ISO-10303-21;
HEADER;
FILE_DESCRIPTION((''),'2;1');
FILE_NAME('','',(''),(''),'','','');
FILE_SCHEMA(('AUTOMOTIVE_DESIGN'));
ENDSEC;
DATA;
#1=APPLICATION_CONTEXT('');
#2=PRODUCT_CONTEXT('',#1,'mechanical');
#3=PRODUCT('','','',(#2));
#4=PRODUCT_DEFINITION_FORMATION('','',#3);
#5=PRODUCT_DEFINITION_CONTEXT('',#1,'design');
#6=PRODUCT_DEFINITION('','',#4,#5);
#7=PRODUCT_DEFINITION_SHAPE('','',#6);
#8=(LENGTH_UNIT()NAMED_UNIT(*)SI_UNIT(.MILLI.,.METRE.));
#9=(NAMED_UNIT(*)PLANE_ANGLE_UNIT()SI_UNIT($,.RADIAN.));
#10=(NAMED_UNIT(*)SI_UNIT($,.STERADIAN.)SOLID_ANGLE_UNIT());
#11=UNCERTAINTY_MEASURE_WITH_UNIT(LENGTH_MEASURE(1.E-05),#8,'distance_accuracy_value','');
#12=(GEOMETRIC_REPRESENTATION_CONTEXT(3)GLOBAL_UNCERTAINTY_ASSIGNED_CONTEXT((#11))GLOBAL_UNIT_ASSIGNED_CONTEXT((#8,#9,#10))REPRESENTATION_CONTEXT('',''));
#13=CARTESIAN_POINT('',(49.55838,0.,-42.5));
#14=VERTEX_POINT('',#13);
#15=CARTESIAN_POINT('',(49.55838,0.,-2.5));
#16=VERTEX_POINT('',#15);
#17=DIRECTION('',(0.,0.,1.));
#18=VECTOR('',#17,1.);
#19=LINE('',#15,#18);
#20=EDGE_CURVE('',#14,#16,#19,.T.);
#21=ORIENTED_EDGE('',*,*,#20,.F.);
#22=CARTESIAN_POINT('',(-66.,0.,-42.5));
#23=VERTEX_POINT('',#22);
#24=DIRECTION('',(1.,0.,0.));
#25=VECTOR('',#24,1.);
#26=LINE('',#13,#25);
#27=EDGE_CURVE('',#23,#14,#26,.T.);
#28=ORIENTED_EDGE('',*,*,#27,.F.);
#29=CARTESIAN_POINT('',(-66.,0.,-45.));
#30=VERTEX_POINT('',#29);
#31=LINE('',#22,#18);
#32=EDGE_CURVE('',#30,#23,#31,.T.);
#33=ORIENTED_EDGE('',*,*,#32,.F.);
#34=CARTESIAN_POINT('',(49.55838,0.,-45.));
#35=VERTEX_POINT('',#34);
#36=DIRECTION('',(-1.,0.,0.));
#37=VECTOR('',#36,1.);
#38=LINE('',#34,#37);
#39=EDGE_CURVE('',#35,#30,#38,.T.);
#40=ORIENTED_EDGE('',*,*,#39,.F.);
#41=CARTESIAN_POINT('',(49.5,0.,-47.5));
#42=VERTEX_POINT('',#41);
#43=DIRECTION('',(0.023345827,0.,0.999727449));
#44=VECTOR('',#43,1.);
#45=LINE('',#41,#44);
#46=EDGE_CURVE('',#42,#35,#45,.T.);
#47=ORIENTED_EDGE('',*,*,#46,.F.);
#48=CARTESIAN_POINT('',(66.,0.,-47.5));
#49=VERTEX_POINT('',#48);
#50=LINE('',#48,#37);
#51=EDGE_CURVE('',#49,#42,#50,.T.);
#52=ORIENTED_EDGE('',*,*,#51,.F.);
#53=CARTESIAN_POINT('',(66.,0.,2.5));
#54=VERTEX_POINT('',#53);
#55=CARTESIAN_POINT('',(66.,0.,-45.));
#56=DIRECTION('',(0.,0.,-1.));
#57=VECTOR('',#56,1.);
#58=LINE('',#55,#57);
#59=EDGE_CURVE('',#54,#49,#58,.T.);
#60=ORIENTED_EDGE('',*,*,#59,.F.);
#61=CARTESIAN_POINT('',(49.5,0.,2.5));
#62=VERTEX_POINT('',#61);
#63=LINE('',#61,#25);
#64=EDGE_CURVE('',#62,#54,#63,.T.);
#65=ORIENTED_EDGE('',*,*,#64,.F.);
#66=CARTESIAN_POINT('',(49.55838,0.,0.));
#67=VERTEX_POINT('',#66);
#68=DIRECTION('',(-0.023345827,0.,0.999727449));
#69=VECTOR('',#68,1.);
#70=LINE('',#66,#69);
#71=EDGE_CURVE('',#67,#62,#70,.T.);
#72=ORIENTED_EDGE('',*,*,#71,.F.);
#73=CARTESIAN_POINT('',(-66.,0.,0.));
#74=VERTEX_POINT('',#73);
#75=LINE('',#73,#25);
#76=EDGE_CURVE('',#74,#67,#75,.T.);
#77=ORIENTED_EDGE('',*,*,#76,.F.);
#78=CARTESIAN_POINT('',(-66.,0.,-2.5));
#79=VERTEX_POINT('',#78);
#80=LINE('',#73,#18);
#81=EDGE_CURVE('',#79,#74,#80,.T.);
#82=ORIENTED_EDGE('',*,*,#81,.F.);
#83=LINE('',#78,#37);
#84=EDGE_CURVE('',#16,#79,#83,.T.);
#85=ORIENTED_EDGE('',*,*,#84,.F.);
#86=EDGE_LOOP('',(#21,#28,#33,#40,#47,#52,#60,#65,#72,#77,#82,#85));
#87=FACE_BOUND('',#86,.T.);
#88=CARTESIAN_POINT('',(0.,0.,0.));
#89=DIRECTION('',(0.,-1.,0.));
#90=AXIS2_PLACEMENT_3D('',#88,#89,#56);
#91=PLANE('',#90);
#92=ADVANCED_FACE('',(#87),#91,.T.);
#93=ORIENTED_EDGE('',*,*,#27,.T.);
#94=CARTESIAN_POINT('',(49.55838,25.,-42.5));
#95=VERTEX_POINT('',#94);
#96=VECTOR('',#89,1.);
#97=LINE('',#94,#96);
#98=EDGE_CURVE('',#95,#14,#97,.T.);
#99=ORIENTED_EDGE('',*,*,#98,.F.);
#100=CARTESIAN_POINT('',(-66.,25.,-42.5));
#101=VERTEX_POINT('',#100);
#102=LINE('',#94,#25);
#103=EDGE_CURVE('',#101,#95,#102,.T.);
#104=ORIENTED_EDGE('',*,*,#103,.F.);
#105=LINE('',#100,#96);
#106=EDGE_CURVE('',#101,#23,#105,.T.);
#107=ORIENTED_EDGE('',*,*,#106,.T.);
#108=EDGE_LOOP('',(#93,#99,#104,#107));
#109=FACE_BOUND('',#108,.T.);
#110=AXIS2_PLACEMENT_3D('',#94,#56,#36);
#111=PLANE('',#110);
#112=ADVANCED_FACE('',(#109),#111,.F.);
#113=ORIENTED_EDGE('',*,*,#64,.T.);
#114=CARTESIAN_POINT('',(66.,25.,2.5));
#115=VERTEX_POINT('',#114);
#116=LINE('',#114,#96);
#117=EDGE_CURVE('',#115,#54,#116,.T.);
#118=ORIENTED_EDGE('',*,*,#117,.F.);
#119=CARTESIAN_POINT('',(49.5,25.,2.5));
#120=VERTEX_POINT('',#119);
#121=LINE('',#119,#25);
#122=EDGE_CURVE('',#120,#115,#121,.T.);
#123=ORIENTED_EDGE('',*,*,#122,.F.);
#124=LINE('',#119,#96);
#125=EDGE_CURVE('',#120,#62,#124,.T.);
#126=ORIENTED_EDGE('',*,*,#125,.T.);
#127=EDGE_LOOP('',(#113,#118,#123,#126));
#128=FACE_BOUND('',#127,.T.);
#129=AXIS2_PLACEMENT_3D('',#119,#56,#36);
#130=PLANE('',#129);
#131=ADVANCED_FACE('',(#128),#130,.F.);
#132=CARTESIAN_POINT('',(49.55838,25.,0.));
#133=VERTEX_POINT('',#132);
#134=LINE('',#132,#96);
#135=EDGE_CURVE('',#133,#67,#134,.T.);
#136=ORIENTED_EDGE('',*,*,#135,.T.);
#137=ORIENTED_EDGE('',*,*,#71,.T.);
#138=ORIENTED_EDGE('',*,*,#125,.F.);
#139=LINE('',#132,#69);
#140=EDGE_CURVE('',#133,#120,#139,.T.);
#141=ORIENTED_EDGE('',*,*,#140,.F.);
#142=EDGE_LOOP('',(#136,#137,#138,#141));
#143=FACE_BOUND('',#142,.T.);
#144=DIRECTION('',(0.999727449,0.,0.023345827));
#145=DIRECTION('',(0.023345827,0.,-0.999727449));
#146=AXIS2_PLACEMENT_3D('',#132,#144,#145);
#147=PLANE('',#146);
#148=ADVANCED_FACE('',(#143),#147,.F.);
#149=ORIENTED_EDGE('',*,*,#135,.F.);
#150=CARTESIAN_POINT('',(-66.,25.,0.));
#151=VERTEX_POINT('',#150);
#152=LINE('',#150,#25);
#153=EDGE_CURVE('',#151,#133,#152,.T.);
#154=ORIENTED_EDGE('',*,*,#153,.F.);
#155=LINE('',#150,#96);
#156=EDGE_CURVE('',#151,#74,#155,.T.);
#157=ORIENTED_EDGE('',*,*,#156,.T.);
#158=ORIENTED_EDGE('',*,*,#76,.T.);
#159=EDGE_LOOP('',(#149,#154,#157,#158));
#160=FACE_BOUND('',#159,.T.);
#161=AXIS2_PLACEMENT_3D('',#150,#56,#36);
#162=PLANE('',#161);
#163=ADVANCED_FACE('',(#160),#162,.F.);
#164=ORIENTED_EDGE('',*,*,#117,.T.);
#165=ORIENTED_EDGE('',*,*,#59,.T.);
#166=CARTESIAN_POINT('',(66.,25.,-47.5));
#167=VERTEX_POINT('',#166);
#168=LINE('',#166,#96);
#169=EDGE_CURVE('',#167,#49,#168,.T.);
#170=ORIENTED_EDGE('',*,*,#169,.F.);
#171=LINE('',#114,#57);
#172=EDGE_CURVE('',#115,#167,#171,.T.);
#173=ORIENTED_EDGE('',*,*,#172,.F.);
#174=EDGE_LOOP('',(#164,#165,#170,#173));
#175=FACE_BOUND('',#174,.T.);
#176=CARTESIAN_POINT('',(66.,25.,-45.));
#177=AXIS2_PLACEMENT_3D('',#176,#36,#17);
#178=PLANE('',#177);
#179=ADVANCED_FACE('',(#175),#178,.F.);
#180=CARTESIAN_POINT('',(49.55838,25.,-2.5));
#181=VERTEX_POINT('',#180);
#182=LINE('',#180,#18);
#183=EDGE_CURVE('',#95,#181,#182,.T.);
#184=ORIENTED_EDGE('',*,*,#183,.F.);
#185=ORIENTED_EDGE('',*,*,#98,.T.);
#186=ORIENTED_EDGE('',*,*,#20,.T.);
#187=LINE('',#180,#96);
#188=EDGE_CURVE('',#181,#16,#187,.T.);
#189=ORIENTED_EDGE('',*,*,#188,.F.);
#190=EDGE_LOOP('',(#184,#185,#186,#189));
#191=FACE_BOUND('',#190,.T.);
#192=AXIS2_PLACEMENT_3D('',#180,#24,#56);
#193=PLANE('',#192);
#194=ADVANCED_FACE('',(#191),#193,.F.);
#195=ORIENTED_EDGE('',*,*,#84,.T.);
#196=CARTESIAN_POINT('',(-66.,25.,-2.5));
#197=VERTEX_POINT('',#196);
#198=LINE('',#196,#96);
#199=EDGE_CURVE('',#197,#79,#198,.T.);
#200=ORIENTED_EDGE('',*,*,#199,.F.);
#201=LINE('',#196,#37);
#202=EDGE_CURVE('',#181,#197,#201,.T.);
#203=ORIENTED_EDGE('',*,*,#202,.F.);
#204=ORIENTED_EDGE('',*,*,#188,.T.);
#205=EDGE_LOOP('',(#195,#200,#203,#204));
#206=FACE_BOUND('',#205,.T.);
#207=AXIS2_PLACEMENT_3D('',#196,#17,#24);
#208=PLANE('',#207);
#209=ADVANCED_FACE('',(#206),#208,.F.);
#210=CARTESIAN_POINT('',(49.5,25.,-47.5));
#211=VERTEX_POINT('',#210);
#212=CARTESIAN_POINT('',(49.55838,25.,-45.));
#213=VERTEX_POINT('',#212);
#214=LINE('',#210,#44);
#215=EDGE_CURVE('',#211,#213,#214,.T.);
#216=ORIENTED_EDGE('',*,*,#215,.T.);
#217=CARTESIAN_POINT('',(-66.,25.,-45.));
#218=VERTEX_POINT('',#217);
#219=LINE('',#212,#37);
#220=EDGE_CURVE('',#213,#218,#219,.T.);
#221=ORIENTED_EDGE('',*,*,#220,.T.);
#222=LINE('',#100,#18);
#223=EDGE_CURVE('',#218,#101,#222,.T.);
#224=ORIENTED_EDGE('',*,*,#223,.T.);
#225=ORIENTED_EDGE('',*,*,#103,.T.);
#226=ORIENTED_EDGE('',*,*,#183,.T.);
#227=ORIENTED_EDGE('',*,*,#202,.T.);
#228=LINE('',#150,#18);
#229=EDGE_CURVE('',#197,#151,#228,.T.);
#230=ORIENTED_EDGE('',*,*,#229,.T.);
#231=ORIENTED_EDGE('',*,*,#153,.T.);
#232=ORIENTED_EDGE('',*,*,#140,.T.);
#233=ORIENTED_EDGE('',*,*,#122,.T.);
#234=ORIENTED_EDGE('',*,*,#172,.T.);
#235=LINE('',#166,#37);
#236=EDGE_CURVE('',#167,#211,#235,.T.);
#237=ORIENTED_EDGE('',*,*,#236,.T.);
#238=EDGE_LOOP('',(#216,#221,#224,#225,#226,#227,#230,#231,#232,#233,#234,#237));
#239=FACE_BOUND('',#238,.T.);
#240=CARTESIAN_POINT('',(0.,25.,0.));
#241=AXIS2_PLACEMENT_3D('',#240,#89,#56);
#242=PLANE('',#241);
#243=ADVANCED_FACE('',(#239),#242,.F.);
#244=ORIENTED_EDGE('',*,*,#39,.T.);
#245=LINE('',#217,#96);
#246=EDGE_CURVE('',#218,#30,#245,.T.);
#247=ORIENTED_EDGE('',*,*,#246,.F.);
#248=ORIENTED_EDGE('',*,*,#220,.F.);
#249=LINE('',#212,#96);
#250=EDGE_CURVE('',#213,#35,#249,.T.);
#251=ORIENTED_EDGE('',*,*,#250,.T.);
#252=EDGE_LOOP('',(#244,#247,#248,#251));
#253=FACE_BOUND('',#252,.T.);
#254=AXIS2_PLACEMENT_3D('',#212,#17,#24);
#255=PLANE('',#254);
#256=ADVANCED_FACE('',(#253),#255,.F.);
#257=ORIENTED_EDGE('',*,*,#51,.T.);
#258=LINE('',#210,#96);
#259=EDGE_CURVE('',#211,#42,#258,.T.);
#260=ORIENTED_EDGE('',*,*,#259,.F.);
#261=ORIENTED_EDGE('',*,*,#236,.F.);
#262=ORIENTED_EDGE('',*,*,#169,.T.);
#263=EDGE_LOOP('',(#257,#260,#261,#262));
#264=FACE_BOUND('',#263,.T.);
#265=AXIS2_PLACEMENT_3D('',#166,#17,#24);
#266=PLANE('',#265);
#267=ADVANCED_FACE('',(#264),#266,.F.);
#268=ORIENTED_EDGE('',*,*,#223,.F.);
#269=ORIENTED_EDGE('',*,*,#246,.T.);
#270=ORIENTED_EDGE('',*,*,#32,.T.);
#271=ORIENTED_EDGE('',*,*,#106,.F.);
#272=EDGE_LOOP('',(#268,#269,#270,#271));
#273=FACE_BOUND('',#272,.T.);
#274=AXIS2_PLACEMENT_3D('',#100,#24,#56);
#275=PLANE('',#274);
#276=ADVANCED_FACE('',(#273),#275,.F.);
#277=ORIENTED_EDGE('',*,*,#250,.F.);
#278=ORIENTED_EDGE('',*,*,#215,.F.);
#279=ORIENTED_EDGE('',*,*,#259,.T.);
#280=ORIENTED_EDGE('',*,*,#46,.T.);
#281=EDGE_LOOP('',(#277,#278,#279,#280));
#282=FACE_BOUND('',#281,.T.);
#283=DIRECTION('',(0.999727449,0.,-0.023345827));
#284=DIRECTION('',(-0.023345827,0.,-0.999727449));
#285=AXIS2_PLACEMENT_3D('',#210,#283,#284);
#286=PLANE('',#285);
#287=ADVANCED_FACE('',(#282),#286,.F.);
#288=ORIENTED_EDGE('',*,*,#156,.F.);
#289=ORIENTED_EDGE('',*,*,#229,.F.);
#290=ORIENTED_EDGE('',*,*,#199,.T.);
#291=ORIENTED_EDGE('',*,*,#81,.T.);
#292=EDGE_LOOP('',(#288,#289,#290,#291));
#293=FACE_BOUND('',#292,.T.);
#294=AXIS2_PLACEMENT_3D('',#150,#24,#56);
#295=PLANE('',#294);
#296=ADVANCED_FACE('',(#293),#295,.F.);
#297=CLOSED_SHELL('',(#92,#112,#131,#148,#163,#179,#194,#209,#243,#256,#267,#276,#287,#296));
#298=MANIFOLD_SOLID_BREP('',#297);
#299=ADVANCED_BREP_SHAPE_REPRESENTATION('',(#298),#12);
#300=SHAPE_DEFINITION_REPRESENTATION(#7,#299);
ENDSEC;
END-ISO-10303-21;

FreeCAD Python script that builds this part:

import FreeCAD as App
import Part
import Sketcher
from FreeCAD import Vector
Q = App.Units.Quantity

doc = App.newDocument("Part")
body = doc.addObject("PartDesign::Body", "Body")

# Sketch on XZ plane
sketch1 = doc.addObject("Sketcher::SketchObject", "Sketch")
body.addObject(sketch1)
sketch1.AttachmentSupport = (doc.XZ_Plane, [""])
sketch1.MapMode = "FlatFace"
sketch1.addGeometry([
    Part.LineSegment(Vector(49.6, 0, 0), Vector(49.5, 2.5, 0)),  # 0
    Part.LineSegment(Vector(49.5, 2.5, 0), Vector(66, 2.5, 0)),  # 1
    Part.LineSegment(Vector(66, 2.5, 0), Vector(66, -47.5, 0)),  # 2
    Part.LineSegment(Vector(66, -47.5, 0), Vector(49.5, -47.5, 0)),  # 3
    Part.LineSegment(Vector(49.5, -47.5, 0), Vector(49.6, -45, 0)),  # 4
    Part.LineSegment(Vector(49.6, -45, 0), Vector(-66, -45, 0)),  # 5
    Part.LineSegment(Vector(-66, -45, 0), Vector(-66, -42.5, 0)),  # 6
    Part.LineSegment(Vector(-66, -42.5, 0), Vector(49.6, -42.5, 0)),  # 7
    Part.LineSegment(Vector(49.6, -42.5, 0), Vector(49.6, -2.5, 0)),  # 8
    Part.LineSegment(Vector(49.6, -2.5, 0), Vector(-66, -2.5, 0)),  # 9
    Part.LineSegment(Vector(-66, -2.5, 0), Vector(-66, 0, 0)),  # 10
    Part.LineSegment(Vector(-66, 0, 0), Vector(49.6, 0, 0)),  # 11
], False)
sketch1.addConstraint([
    Sketcher.Constraint("Coincident", 0, 2, 1, 1),
    Sketcher.Constraint("Coincident", 1, 2, 2, 1),
    Sketcher.Constraint("Coincident", 2, 2, 3, 1),
    Sketcher.Constraint("Coincident", 3, 2, 4, 1),
    Sketcher.Constraint("Coincident", 4, 2, 5, 1),
    Sketcher.Constraint("Coincident", 5, 2, 6, 1),
    Sketcher.Constraint("Coincident", 6, 2, 7, 1),
    Sketcher.Constraint("Coincident", 7, 2, 8, 1),
    Sketcher.Constraint("Coincident", 8, 2, 9, 1),
    Sketcher.Constraint("Coincident", 9, 2, 10, 1),
    Sketcher.Constraint("Coincident", 10, 2, 11, 1),
    Sketcher.Constraint("Coincident", 11, 2, 0, 1),
    Sketcher.Constraint("Horizontal", 1),
    Sketcher.Constraint("Vertical", 2),
    Sketcher.Constraint("Horizontal", 3),
    Sketcher.Constraint("Horizontal", 5),
    Sketcher.Constraint("Vertical", 6),
    Sketcher.Constraint("Horizontal", 7),
    Sketcher.Constraint("Vertical", 8),
    Sketcher.Constraint("Horizontal", 9),
    Sketcher.Constraint("Vertical", 10),
    Sketcher.Constraint("Horizontal", 11),
    Sketcher.Constraint("Symmetric", 1, 2, 9, 2, -1, 1),
    Sketcher.Constraint("PointOnObject", 10, 2, -1),
    Sketcher.Constraint("Vertical", 0, 2, 3, 2),
    Sketcher.Constraint("Vertical", 4, 2, 7, 2),
    Sketcher.Constraint("Vertical", 6, 2, 9, 2),
    Sketcher.Constraint("Vertical", 8, 2, 11, 2),
    Sketcher.Constraint("Equal", 6, 10),
    Sketcher.Constraint("Equal", 0, 4),
    Sketcher.Constraint("DistanceY", 2, 2, 2, 1, Q("50 mm")),
    Sketcher.Constraint("DistanceY", 8, 1, 8, 2, Q("40 mm")),
    Sketcher.Constraint("DistanceX", 1, 1, 1, 2, Q("16.5 mm")),
    Sketcher.Constraint("DistanceX", -1, 1, 1, 2, Q("66 mm")),
    Sketcher.Constraint("DistanceX", 5, 2, 5, 1, Q("115.55838 mm")),
])
pad1 = doc.addObject("PartDesign::Pad", "Pad")
body.addObject(pad1)
pad1.Profile = sketch1
pad1.Length = 25
pad1.Reversed = True

doc.recompute()
